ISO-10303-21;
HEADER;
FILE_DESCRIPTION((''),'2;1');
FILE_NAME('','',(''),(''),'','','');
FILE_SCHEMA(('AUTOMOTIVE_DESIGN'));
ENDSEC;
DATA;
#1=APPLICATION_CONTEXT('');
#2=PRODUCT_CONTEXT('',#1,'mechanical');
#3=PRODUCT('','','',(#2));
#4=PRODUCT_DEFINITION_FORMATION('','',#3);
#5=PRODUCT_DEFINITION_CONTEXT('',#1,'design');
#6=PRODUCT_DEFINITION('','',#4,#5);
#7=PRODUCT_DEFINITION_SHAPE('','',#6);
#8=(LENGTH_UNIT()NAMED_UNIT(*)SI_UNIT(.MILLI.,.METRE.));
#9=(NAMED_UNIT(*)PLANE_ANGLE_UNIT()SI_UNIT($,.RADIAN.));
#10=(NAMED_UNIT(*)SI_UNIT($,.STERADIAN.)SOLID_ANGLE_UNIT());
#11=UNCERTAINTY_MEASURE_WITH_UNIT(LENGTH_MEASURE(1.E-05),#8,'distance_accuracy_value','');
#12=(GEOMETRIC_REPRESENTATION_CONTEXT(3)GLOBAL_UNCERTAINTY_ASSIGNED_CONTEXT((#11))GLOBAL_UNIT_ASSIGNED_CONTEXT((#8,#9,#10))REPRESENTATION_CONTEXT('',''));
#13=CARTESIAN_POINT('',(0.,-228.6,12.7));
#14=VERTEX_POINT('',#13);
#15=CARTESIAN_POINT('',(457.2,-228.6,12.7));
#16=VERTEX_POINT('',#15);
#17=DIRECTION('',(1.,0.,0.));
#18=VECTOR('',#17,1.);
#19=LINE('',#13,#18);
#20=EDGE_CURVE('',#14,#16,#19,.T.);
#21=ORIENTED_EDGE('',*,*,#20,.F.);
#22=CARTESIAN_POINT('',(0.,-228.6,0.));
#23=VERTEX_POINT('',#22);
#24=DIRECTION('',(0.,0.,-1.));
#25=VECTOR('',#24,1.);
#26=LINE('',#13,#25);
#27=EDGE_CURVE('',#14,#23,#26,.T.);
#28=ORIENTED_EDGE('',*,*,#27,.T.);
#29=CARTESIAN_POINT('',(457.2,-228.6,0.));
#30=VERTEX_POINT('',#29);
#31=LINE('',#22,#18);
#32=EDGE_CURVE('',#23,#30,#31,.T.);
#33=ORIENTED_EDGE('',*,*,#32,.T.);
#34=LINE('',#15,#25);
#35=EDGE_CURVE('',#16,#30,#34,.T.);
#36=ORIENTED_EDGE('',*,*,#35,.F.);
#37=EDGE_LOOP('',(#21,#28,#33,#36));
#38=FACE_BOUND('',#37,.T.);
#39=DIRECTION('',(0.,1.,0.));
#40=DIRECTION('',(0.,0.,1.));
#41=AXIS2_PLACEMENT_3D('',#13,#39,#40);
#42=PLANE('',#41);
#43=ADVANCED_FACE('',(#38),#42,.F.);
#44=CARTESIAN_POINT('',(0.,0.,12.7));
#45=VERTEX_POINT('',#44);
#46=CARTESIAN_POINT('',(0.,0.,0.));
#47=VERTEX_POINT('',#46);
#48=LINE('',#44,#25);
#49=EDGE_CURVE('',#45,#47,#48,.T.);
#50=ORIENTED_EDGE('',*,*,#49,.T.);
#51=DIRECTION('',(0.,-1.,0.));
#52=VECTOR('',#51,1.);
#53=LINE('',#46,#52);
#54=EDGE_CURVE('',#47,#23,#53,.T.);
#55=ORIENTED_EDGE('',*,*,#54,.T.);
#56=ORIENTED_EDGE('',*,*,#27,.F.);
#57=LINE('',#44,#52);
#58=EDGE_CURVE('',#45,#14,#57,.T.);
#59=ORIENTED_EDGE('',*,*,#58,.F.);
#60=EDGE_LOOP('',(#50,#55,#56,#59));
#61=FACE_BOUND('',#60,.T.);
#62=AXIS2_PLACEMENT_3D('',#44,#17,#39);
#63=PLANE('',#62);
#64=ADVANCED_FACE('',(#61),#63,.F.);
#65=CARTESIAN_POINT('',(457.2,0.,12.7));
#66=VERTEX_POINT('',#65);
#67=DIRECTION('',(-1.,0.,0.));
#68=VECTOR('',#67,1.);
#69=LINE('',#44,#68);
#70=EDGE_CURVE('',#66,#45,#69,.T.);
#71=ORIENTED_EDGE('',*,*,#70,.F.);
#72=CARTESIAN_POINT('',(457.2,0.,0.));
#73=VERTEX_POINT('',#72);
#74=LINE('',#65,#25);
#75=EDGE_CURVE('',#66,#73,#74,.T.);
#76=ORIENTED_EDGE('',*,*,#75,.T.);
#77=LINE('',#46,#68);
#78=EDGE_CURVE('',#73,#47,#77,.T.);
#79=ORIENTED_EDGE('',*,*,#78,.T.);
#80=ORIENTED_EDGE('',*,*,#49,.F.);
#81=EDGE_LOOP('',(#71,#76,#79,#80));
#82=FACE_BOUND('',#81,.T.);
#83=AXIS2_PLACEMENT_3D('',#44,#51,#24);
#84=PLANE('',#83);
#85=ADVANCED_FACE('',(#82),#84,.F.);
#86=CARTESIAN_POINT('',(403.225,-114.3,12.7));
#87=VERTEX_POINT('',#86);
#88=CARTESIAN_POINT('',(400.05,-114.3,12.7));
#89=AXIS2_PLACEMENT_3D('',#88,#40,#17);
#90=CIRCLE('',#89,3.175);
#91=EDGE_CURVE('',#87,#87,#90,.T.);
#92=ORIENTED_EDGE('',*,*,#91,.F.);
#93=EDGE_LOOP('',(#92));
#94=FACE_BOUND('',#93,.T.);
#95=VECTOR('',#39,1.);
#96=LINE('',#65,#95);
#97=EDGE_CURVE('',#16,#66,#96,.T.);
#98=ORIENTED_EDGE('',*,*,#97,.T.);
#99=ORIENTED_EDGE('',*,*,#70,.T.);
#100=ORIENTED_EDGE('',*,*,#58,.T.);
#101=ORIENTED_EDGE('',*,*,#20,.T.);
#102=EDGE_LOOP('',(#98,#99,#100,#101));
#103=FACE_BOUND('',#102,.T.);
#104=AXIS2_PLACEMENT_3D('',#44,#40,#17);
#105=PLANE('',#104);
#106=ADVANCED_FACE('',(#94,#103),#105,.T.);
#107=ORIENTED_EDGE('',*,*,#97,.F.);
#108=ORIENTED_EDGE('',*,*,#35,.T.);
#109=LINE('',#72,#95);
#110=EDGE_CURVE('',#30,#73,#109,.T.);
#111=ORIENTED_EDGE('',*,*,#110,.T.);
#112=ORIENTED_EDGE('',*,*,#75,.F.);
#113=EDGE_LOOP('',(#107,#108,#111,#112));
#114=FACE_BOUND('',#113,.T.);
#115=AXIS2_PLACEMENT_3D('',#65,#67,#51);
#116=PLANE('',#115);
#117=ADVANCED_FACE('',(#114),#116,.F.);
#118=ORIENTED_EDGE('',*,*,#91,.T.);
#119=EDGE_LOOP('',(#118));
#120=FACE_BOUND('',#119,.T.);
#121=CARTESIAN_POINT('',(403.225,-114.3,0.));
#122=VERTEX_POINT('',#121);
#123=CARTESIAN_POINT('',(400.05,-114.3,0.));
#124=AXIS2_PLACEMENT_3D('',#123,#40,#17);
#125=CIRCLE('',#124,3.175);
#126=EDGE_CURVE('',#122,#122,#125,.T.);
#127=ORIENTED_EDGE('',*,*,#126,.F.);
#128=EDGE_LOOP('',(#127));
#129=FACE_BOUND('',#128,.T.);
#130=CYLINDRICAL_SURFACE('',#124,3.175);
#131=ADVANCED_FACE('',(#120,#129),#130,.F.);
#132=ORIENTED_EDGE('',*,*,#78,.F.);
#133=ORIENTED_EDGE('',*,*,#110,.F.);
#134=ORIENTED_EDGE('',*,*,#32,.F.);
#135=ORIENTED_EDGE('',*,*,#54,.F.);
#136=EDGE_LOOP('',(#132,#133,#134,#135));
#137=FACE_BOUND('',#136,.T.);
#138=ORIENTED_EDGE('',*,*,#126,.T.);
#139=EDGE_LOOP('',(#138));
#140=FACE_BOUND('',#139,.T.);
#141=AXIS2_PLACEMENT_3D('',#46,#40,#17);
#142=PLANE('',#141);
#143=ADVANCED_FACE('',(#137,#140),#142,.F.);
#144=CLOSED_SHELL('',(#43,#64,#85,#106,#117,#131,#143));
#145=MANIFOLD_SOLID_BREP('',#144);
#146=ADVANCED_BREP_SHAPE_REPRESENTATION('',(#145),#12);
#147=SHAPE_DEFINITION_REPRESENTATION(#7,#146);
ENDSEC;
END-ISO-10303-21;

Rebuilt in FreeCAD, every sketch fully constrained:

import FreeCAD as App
import Part
import Sketcher
Q = App.Units.Quantity

doc = App.newDocument("Part")
body = doc.addObject("PartDesign::Body", "Body")

# Sketch on XY plane
sketch1 = body.newObject("Sketcher::SketchObject", "Sketch")
sketch1.AttachmentSupport = (doc.getObject("XY_Plane"), [""])
sketch1.MapMode = "FlatFace"
sketch1.addGeometry(Part.LineSegment(App.Vector(0, 0, 0), App.Vector(0, -229, 0)), False)
sketch1.addGeometry(Part.LineSegment(App.Vector(0, -229, 0), App.Vector(457, -229, 0)), False)
sketch1.addGeometry(Part.LineSegment(App.Vector(457, -229, 0), App.Vector(457, 0, 0)), False)
sketch1.addGeometry(Part.LineSegment(App.Vector(457, 0, 0), App.Vector(0, 0, 0)), False)
sketch1.addConstraint(Sketcher.Constraint("Coincident", 0, 2, 1, 1))
sketch1.addConstraint(Sketcher.Constraint("Coincident", 1, 2, 2, 1))
sketch1.addConstraint(Sketcher.Constraint("Coincident", 2, 2, 3, 1))
sketch1.addConstraint(Sketcher.Constraint("Coincident", 3, 2, 0, 1))
sketch1.addConstraint(Sketcher.Constraint("Vertical", 0))
sketch1.addConstraint(Sketcher.Constraint("Horizontal", 1))
sketch1.addConstraint(Sketcher.Constraint("Vertical", 2))
sketch1.addConstraint(Sketcher.Constraint("Horizontal", 3))
sketch1.addConstraint(Sketcher.Constraint("Coincident", 3, 2, -1, 1))
sketch1.addConstraint(Sketcher.Constraint("DistanceX", 1, 1, 1, 2, Q("18 in")))
sketch1.addConstraint(Sketcher.Constraint("DistanceY", 0, 2, 0, 1, Q("9 in")))
pad1 = body.newObject("PartDesign::Pad", "Pad")
pad1.Profile = sketch1
pad1.Length = Q("0.5 in")

# Sketch on XY plane
sketch2 = body.newObject("Sketcher::SketchObject", "Sketch001")
sketch2.AttachmentSupport = (doc.getObject("XY_Plane"), [""])
sketch2.MapMode = "FlatFace"
sketch2.AttachmentOffset = App.Placement(App.Vector(0, 0, 0.5 * 25.4), App.Rotation())
sketch2.addGeometry(Part.Circle(App.Vector(400.1, -114.3, 0), App.Vector(0, 0, 1), 3.2), False)
sketch2.addConstraint(Sketcher.Constraint("Diameter", 0, Q("0.25 in")))
sketch2.addConstraint(Sketcher.Constraint("DistanceY", 0, 3, -1, 1, Q("4.5 in")))
sketch2.addConstraint(Sketcher.Constraint("DistanceX", -1, 1, 0, 3, Q("15.75 in")))
pocket1 = body.newObject("PartDesign::Pocket", "Pocket")
pocket1.Profile = sketch2
pocket1.Length = Q("0.5 in")

doc.recompute()
